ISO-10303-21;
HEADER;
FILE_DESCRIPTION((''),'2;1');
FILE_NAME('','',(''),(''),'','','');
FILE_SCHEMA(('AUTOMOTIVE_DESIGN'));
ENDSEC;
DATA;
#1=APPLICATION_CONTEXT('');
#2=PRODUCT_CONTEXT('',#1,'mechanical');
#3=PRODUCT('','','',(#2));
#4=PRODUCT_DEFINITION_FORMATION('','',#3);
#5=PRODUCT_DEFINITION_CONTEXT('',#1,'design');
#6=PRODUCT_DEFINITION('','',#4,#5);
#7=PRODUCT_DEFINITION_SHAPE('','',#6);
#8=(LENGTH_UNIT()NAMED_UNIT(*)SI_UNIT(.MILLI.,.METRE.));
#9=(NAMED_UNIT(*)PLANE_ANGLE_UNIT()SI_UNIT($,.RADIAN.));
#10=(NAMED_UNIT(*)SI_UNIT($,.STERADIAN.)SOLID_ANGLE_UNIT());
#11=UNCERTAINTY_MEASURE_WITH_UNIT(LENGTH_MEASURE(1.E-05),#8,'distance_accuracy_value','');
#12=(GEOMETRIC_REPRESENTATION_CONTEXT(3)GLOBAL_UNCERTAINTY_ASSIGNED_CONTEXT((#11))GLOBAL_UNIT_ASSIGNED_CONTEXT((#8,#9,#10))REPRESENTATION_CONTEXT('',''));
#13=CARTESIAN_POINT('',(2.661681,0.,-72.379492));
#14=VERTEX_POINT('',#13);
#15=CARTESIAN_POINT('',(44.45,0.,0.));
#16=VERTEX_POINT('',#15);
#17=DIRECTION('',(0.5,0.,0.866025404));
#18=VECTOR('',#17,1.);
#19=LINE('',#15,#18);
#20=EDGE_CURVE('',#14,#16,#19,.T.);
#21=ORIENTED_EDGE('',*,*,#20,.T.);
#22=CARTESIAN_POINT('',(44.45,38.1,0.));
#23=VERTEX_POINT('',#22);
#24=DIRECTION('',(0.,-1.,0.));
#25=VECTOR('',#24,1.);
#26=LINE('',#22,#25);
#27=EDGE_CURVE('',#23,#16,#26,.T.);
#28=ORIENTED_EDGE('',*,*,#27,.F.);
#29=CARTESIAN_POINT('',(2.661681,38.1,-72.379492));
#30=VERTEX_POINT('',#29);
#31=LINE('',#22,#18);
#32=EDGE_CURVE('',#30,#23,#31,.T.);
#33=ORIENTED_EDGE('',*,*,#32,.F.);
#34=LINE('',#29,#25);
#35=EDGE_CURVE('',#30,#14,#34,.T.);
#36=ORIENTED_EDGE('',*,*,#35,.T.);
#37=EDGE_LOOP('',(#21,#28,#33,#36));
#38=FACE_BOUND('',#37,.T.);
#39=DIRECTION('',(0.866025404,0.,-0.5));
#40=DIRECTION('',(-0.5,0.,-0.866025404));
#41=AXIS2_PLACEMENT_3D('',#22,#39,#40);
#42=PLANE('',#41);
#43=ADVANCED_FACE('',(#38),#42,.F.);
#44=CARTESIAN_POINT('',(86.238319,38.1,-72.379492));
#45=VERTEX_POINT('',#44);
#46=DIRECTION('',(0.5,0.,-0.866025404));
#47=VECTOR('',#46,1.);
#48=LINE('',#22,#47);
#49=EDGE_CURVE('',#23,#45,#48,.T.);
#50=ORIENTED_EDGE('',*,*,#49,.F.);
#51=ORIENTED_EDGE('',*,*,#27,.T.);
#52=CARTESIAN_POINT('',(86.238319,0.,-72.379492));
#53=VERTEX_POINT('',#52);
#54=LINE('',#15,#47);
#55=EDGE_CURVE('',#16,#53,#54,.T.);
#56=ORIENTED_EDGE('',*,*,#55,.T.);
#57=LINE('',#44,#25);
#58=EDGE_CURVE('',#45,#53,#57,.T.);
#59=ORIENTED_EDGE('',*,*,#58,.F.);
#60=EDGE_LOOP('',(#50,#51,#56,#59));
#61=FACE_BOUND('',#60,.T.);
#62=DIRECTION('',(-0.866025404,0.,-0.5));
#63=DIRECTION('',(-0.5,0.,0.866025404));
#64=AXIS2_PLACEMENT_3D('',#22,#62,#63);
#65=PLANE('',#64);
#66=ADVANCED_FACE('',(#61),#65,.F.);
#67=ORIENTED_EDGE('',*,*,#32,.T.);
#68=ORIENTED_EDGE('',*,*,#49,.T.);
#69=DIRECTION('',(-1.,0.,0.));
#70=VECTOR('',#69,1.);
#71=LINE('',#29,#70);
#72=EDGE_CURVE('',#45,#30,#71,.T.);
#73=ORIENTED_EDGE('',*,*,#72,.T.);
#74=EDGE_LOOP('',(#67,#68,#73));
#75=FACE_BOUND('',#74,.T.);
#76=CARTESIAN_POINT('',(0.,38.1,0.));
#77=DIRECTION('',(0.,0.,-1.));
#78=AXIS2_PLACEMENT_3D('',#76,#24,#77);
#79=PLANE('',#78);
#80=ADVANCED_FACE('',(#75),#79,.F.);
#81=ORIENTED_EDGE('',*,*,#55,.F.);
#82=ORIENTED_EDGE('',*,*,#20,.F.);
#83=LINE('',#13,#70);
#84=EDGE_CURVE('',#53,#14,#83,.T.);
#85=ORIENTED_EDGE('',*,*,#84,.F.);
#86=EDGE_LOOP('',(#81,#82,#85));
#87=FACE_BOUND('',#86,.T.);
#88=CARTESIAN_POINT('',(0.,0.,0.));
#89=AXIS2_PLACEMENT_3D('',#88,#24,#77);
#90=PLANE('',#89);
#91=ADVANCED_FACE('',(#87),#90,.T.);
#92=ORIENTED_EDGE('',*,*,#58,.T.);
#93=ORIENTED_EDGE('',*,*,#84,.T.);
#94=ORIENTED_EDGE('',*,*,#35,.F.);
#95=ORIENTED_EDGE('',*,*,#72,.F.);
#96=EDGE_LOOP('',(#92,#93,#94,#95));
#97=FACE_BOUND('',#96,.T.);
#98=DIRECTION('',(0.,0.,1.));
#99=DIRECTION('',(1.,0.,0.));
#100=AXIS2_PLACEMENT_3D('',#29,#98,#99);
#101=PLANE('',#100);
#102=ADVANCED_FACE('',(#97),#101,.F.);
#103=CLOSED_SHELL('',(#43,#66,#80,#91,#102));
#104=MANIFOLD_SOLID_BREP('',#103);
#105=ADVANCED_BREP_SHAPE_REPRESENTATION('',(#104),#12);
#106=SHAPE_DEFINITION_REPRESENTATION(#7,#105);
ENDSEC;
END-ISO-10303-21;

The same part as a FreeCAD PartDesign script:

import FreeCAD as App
import Part
import Sketcher
Q = App.Units.Quantity


def add_polygon(sketch, points):
    """Adds a closed chain of lines whose ends are joined by coincident constraints."""
    first, n = sketch.GeometryCount, len(points)
    for a, b in zip(points, points[1:] + points[:1]):
        sketch.addGeometry(Part.LineSegment(App.Vector(*a, 0), App.Vector(*b, 0)), False)
    for i in range(n):
        sketch.addConstraint(Sketcher.Constraint("Coincident", first + i, 2, first + (i + 1) % n, 1))

doc = App.newDocument("Part")
body = doc.addObject("PartDesign::Body", "Body")

# Sketch on XZ plane
sketch1 = doc.addObject("Sketcher::SketchObject", "Sketch")
body.addObject(sketch1)
sketch1.AttachmentSupport = (doc.XZ_Plane, [""])
sketch1.MapMode = "FlatFace"
add_polygon(sketch1, [(44, 0), (86, -72), (3, -72)])  # lines 0-2
sketch1.addConstraint([
    Sketcher.Constraint("Horizontal", 1),
    Sketcher.Constraint("PointOnObject", 2, 2, -1),
    Sketcher.Constraint("Equal", 0, 2),
    Sketcher.Constraint("Angle", 0, Q("-60 deg")),
    Sketcher.Constraint("DistanceX", -1, 1, 2, 2, Q("1.75 in")),
    Sketcher.Constraint("DistanceX", 1, 2, 1, 1, Q("83.576639 mm")),
])
pad1 = doc.addObject("PartDesign::Pad", "Pad")
body.addObject(pad1)
pad1.Profile = sketch1
pad1.Length = Q("1.5 in")
pad1.Reversed = True

doc.recompute()
